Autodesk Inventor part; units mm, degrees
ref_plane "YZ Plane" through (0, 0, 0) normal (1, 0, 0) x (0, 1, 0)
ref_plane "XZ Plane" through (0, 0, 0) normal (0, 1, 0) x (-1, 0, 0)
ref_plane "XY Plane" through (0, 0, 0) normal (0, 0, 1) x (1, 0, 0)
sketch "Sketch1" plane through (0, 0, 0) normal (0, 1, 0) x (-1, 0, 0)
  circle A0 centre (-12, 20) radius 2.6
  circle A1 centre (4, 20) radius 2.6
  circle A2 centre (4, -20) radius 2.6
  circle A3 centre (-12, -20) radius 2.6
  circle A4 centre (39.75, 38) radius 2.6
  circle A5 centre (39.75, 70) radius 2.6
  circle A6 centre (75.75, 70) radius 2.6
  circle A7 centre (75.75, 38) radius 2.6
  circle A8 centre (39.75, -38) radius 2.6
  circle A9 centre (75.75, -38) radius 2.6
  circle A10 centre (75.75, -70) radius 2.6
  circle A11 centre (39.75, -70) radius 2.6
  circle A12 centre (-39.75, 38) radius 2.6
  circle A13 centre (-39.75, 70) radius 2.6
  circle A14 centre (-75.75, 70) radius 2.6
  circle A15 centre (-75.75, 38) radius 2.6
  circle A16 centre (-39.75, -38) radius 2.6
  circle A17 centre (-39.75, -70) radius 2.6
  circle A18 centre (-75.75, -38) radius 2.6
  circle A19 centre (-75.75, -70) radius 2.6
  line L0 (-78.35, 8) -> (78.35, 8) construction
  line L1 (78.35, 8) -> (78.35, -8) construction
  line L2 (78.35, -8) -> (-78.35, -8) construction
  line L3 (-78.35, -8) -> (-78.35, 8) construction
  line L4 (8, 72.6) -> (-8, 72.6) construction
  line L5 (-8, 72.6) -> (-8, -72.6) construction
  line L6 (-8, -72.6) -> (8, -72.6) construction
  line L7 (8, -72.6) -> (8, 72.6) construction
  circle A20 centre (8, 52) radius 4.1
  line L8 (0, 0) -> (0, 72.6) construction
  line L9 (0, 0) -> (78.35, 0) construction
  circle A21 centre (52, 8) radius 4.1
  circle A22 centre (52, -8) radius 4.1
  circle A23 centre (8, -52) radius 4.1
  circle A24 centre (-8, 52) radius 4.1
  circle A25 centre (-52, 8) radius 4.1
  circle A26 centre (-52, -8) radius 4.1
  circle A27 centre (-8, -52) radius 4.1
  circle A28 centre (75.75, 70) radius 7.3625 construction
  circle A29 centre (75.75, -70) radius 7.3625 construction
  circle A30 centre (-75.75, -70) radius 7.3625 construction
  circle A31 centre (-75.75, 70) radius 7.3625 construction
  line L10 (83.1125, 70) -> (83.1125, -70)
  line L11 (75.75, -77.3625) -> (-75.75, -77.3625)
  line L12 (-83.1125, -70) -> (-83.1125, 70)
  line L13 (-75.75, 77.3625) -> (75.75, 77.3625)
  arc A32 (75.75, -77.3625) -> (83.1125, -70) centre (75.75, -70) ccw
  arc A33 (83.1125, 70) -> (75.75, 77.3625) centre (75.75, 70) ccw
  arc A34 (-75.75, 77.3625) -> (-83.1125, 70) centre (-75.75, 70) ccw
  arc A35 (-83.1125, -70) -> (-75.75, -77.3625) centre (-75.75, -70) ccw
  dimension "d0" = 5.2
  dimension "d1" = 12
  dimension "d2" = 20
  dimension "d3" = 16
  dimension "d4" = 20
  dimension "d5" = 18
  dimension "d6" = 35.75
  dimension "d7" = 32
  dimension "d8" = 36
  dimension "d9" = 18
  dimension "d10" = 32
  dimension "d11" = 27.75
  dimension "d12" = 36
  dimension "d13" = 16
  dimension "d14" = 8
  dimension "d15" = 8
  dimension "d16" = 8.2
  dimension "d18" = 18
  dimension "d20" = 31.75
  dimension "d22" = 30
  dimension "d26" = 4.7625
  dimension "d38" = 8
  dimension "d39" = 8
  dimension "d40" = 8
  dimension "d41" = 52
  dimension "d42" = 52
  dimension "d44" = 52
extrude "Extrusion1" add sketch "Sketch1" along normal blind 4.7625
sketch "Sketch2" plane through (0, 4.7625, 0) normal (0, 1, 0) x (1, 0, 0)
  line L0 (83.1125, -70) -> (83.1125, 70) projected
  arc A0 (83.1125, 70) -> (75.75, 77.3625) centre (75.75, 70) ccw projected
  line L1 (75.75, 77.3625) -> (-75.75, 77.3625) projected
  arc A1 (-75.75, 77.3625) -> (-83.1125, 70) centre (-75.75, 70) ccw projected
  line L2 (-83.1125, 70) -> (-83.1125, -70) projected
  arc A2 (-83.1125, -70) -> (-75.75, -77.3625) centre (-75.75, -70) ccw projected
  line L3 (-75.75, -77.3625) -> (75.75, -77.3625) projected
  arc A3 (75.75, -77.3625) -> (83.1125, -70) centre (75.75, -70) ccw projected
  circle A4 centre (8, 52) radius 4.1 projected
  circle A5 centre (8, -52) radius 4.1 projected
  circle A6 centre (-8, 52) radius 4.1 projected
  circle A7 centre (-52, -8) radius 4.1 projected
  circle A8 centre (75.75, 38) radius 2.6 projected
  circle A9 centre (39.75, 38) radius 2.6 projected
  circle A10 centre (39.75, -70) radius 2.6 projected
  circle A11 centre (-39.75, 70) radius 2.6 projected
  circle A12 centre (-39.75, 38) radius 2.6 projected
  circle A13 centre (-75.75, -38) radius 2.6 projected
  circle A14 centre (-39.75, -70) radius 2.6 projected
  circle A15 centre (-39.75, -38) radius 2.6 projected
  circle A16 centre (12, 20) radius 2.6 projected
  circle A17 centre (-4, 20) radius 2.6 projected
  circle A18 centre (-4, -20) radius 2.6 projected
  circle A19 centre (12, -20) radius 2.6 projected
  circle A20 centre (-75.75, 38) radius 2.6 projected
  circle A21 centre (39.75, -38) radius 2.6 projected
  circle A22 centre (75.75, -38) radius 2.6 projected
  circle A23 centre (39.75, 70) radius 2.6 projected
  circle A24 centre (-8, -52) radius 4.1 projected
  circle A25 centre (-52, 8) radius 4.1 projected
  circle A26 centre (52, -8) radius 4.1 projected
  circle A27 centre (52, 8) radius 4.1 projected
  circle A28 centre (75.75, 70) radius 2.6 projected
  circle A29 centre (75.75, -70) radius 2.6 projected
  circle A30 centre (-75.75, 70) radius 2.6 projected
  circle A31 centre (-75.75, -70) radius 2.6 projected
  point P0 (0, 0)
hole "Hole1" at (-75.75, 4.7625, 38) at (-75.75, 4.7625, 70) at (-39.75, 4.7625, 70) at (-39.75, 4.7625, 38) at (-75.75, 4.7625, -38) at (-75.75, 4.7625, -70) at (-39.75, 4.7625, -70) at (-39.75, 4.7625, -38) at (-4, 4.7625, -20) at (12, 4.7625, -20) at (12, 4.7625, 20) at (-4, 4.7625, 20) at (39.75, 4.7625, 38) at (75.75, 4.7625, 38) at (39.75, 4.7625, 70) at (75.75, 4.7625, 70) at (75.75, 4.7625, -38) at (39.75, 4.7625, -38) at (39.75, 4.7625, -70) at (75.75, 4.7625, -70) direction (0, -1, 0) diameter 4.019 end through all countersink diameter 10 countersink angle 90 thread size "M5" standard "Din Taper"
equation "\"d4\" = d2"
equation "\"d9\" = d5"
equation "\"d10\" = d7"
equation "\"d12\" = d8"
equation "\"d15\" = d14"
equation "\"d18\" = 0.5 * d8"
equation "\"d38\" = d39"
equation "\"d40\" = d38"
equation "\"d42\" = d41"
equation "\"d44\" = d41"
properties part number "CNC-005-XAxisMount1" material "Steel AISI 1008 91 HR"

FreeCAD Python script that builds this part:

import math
import FreeCAD as App
import Part
import Sketcher
Q = App.Units.Quantity

doc = App.newDocument("Part")
params = doc.addObject("Spreadsheet::Sheet", "Params")
for row, (alias, value) in enumerate([
    ("sketch1_diameter", "5.2 mm"),
    ("sketch1_diameter2", "8.2 mm"),
    ("pad1_length", "4.7625 mm"),
    ("hole_diameter", "4.019 mm"),
    ("hole_csink_diameter", "10 mm"),
], start=1):
    params.set(f"A{row}", alias)
    params.set(f"B{row}", "=" + value)
    params.setAlias(f"B{row}", alias)

body = doc.addObject("PartDesign::Body", "Body")

sketch1 = doc.addObject("Sketcher::SketchObject", "Sketch")
body.addObject(sketch1)
sketch1.AttachmentSupport = (doc.XZ_Plane, [""])
sketch1.MapMode = "FlatFace"
sketch1.addGeometry(Part.LineSegment(App.Vector(-83.1, -70, 0), App.Vector(-83.1, 70, 0)), False)
sketch1.addGeometry(Part.ArcOfCircle(Part.Circle(App.Vector(-75.8, 70, 0), App.Vector(0, 0, 1), 7.4), math.radians(90), math.radians(180)), False)
sketch1.addGeometry(Part.LineSegment(App.Vector(-75.8, 77.4, 0), App.Vector(75.8, 77.4, 0)), False)
sketch1.addGeometry(Part.ArcOfCircle(Part.Circle(App.Vector(75.8, 70, 0), App.Vector(0, 0, 1), 7.4), math.radians(0), math.radians(90)), False)
sketch1.addGeometry(Part.LineSegment(App.Vector(83.1, 70, 0), App.Vector(83.1, -70, 0)), False)
sketch1.addGeometry(Part.ArcOfCircle(Part.Circle(App.Vector(75.8, -70, 0), App.Vector(0, 0, 1), 7.4), math.radians(-90), math.radians(0)), False)
sketch1.addGeometry(Part.LineSegment(App.Vector(75.8, -77.4, 0), App.Vector(-75.8, -77.4, 0)), False)
sketch1.addGeometry(Part.ArcOfCircle(Part.Circle(App.Vector(-75.8, -70, 0), App.Vector(0, 0, 1), 7.4), math.radians(180), math.radians(270)), False)
sketch1.addGeometry(Part.Circle(App.Vector(75.8, -70, 0), App.Vector(0, 0, 1), 2.6), False)
sketch1.addGeometry(Part.Circle(App.Vector(39.8, -70, 0), App.Vector(0, 0, 1), 2.6), False)
sketch1.addGeometry(Part.Circle(App.Vector(8, -52, 0), App.Vector(0, 0, 1), 4.1), False)
sketch1.addGeometry(Part.Circle(App.Vector(75.8, -38, 0), App.Vector(0, 0, 1), 2.6), False)
sketch1.addGeometry(Part.Circle(App.Vector(52, -8, 0), App.Vector(0, 0, 1), 4.1), False)
sketch1.addGeometry(Part.Circle(App.Vector(39.8, -38, 0), App.Vector(0, 0, 1), 2.6), False)
sketch1.addGeometry(Part.Circle(App.Vector(12, -20, 0), App.Vector(0, 0, 1), 2.6), False)
sketch1.addGeometry(Part.Circle(App.Vector(-39.8, -70, 0), App.Vector(0, 0, 1), 2.6), False)
sketch1.addGeometry(Part.Circle(App.Vector(-8, -52, 0), App.Vector(0, 0, 1), 4.1), False)
sketch1.addGeometry(Part.Circle(App.Vector(-75.8, -70, 0), App.Vector(0, 0, 1), 2.6), False)
sketch1.addGeometry(Part.Circle(App.Vector(-4, -20, 0), App.Vector(0, 0, 1), 2.6), False)
sketch1.addGeometry(Part.Circle(App.Vector(-39.8, -38, 0), App.Vector(0, 0, 1), 2.6), False)
sketch1.addGeometry(Part.Circle(App.Vector(-75.8, -38, 0), App.Vector(0, 0, 1), 2.6), False)
sketch1.addGeometry(Part.Circle(App.Vector(-52, -8, 0), App.Vector(0, 0, 1), 4.1), False)
sketch1.addGeometry(Part.Circle(App.Vector(52, 8, 0), App.Vector(0, 0, 1), 4.1), False)
sketch1.addGeometry(Part.Circle(App.Vector(75.8, 38, 0), App.Vector(0, 0, 1), 2.6), False)
sketch1.addGeometry(Part.Circle(App.Vector(39.8, 38, 0), App.Vector(0, 0, 1), 2.6), False)
sketch1.addGeometry(Part.Circle(App.Vector(12, 20, 0), App.Vector(0, 0, 1), 2.6), False)
sketch1.addGeometry(Part.Circle(App.Vector(75.8, 70, 0), App.Vector(0, 0, 1), 2.6), False)
sketch1.addGeometry(Part.Circle(App.Vector(8, 52, 0), App.Vector(0, 0, 1), 4.1), False)
sketch1.addGeometry(Part.Circle(App.Vector(39.8, 70, 0), App.Vector(0, 0, 1), 2.6), False)
sketch1.addGeometry(Part.Circle(App.Vector(-4, 20, 0), App.Vector(0, 0, 1), 2.6), False)
sketch1.addGeometry(Part.Circle(App.Vector(-39.8, 38, 0), App.Vector(0, 0, 1), 2.6), False)
sketch1.addGeometry(Part.Circle(App.Vector(-52, 8, 0), App.Vector(0, 0, 1), 4.1), False)
sketch1.addGeometry(Part.Circle(App.Vector(-75.8, 38, 0), App.Vector(0, 0, 1), 2.6), False)
sketch1.addGeometry(Part.Circle(App.Vector(-8, 52, 0), App.Vector(0, 0, 1), 4.1), False)
sketch1.addGeometry(Part.Circle(App.Vector(-39.8, 70, 0), App.Vector(0, 0, 1), 2.6), False)
sketch1.addGeometry(Part.Circle(App.Vector(-75.8, 70, 0), App.Vector(0, 0, 1), 2.6), False)
sketch1.addConstraint(Sketcher.Constraint("Tangent", 0, 2, 1, 2))
sketch1.addConstraint(Sketcher.Constraint("Tangent", 1, 1, 2, 1))
sketch1.addConstraint(Sketcher.Constraint("Tangent", 2, 2, 3, 2))
sketch1.addConstraint(Sketcher.Constraint("Tangent", 3, 1, 4, 1))
sketch1.addConstraint(Sketcher.Constraint("Tangent", 4, 2, 5, 2))
sketch1.addConstraint(Sketcher.Constraint("Tangent", 5, 1, 6, 1))
sketch1.addConstraint(Sketcher.Constraint("Tangent", 6, 2, 7, 2))
sketch1.addConstraint(Sketcher.Constraint("Tangent", 7, 1, 0, 1))
sketch1.addConstraint(Sketcher.Constraint("Vertical", 0))
sketch1.addConstraint(Sketcher.Constraint("Horizontal", 2))
sketch1.addConstraint(Sketcher.Constraint("Vertical", 4))
sketch1.addConstraint(Sketcher.Constraint("Horizontal", 6))
sketch1.addConstraint(Sketcher.Constraint("Coincident", 8, 3, 5, 3))
sketch1.addConstraint(Sketcher.Constraint("Coincident", 17, 3, 7, 3))
sketch1.addConstraint(Sketcher.Constraint("Coincident", 26, 3, 3, 3))
sketch1.addConstraint(Sketcher.Constraint("Coincident", 35, 3, 1, 3))
sketch1.addConstraint(Sketcher.Constraint("Equal", 1, 3))
sketch1.addConstraint(Sketcher.Constraint("Equal", 3, 5))
sketch1.addConstraint(Sketcher.Constraint("Equal", 5, 7))
sketch1.addConstraint(Sketcher.Constraint("Equal", 8, 9))
sketch1.addConstraint(Sketcher.Constraint("Equal", 9, 11))
sketch1.addConstraint(Sketcher.Constraint("Equal", 10, 12))
sketch1.addConstraint(Sketcher.Constraint("Equal", 11, 13))
sketch1.addConstraint(Sketcher.Constraint("Equal", 13, 14))
sketch1.addConstraint(Sketcher.Constraint("Equal", 14, 15))
sketch1.addConstraint(Sketcher.Constraint("Equal", 12, 16))
sketch1.addConstraint(Sketcher.Constraint("Equal", 15, 17))
sketch1.addConstraint(Sketcher.Constraint("Equal", 17, 18))
sketch1.addConstraint(Sketcher.Constraint("Equal", 18, 19))
sketch1.addConstraint(Sketcher.Constraint("Equal", 19, 20))
sketch1.addConstraint(Sketcher.Constraint("Equal", 16, 21))
sketch1.addConstraint(Sketcher.Constraint("Equal", 21, 22))
sketch1.addConstraint(Sketcher.Constraint("Equal", 20, 23))
sketch1.addConstraint(Sketcher.Constraint("Equal", 23, 24))
sketch1.addConstraint(Sketcher.Constraint("Equal", 24, 25))
sketch1.addConstraint(Sketcher.Constraint("Equal", 25, 26))
sketch1.addConstraint(Sketcher.Constraint("Equal", 22, 27))
sketch1.addConstraint(Sketcher.Constraint("Equal", 26, 28))
sketch1.addConstraint(Sketcher.Constraint("Equal", 28, 29))
sketch1.addConstraint(Sketcher.Constraint("Equal", 29, 30))
sketch1.addConstraint(Sketcher.Constraint("Equal", 27, 31))
sketch1.addConstraint(Sketcher.Constraint("Equal", 30, 32))
sketch1.addConstraint(Sketcher.Constraint("Equal", 31, 33))
sketch1.addConstraint(Sketcher.Constraint("Equal", 32, 34))
sketch1.addConstraint(Sketcher.Constraint("Equal", 34, 35))
sketch1.addConstraint(Sketcher.Constraint("Symmetric", 1, 3, 5, 3, -1, 1))
sketch1.addConstraint(Sketcher.Constraint("Symmetric", 21, 3, 22, 3, -1, 1))
sketch1.addConstraint(Sketcher.Constraint("Symmetric", 20, 3, 23, 3, -1, 1))
sketch1.addConstraint(Sketcher.Constraint("Symmetric", 19, 3, 24, 3, -1, 1))
sketch1.addConstraint(Sketcher.Constraint("Symmetric", 16, 3, 27, 3, -1, 1))
sketch1.addConstraint(Sketcher.Constraint("Symmetric", 15, 3, 28, 3, -1, 1))
sketch1.addConstraint(Sketcher.Constraint("Symmetric", 13, 3, 30, 3, -1, 1))
sketch1.addConstraint(Sketcher.Constraint("Symmetric", 12, 3, 31, 3, -1, 1))
sketch1.addConstraint(Sketcher.Constraint("Symmetric", 11, 3, 32, 3, -1, 1))
sketch1.addConstraint(Sketcher.Constraint("Symmetric", 10, 3, 33, 3, -1, 1))
sketch1.addConstraint(Sketcher.Constraint("Symmetric", 9, 3, 34, 3, -1, 1))
sketch1.addConstraint(Sketcher.Constraint("Symmetric", 9, 3, 15, 3, -2))
sketch1.addConstraint(Sketcher.Constraint("Symmetric", 10, 3, 16, 3, -2))
sketch1.addConstraint(Sketcher.Constraint("Symmetric", 13, 3, 19, 3, -2))
sketch1.addConstraint(Sketcher.Constraint("Symmetric", 11, 3, 20, 3, -2))
sketch1.addConstraint(Sketcher.Constraint("Symmetric", 12, 3, 21, 3, -2))
sketch1.addConstraint(Sketcher.Constraint("Symmetric", 14, 3, 25, 3, -1))
sketch1.addConstraint(Sketcher.Constraint("Symmetric", 18, 3, 29, 3, -1))
sketch1.addConstraint(Sketcher.Constraint("Horizontal", 8, 3, 9, 3))
sketch1.addConstraint(Sketcher.Constraint("Horizontal", 11, 3, 13, 3))
sketch1.addConstraint(Sketcher.Constraint("Horizontal", 14, 3, 18, 3))
sketch1.addConstraint(Sketcher.Constraint("Vertical", 8, 3, 11, 3))
sketch1.addConstraint(Sketcher.Constraint("Vertical", 9, 3, 13, 3))
sketch1.addConstraint(Sketcher.Constraint("Diameter", 8, Q("5.2 mm")))
sketch1.addConstraint(Sketcher.Constraint("Diameter", 10, Q("8.2 mm")))
sketch1.addConstraint(Sketcher.Constraint("DistanceX", -1, 1, 10, 3, Q("8 mm")))
sketch1.addConstraint(Sketcher.Constraint("DistanceY", 10, 3, -1, 1, Q("52 mm")))
sketch1.addConstraint(Sketcher.Constraint("DistanceX", -1, 1, 12, 3, Q("52 mm")))
sketch1.addConstraint(Sketcher.Constraint("DistanceY", 12, 3, -1, 1, Q("8 mm")))
sketch1.addConstraint(Sketcher.Constraint("DistanceX", -1, 1, 14, 3, Q("12 mm")))
sketch1.addConstraint(Sketcher.Constraint("DistanceY", 14, 3, -1, 1, Q("20 mm")))
sketch1.addConstraint(Sketcher.Constraint("DistanceX", 9, 3, 5, 3, Q("36 mm")))
sketch1.addConstraint(Sketcher.Constraint("DistanceY", 9, 3, 10, 3, Q("18 mm")))
sketch1.addConstraint(Sketcher.Constraint("DistanceY", 5, 3, 11, 3, Q("32 mm")))
sketch1.addConstraint(Sketcher.Constraint("DistanceX", 18, 3, 14, 3, Q("16 mm")))
sketch1.addConstraint(Sketcher.Constraint("DistanceX", 10, 3, 9, 3, Q("31.75 mm")))
sketch1.addConstraint(Sketcher.Constraint("Radius", 1, Q("7.3625 mm")))
sketch1.setExpression("Constraints[68]", "Params.sketch1_diameter")
sketch1.setExpression("Constraints[69]", "Params.sketch1_diameter2")
pad1 = doc.addObject("PartDesign::Pad", "Pad")
body.addObject(pad1)
pad1.Profile = sketch1
pad1.setExpression("Length", "Params.pad1_length")
pad1.Reversed = True

sketch2 = doc.addObject("Sketcher::SketchObject", "Sketch001")
body.addObject(sketch2)
sketch2.AttachmentSupport = (doc.XZ_Plane, [""])
sketch2.MapMode = "FlatFace"
sketch2.AttachmentOffset = App.Placement(App.Vector(0, 0, -4.7625), App.Rotation())
sketch2.addGeometry(Part.Circle(App.Vector(-75.8, 38, 0), App.Vector(0, 0, 1), 2), False)
sketch2.addGeometry(Part.Circle(App.Vector(-75.8, 70, 0), App.Vector(0, 0, 1), 2), False)
sketch2.addGeometry(Part.Circle(App.Vector(-39.8, 70, 0), App.Vector(0, 0, 1), 2), False)
sketch2.addGeometry(Part.Circle(App.Vector(-39.8, 38, 0), App.Vector(0, 0, 1), 2), False)
sketch2.addGeometry(Part.Circle(App.Vector(-75.8, -38, 0), App.Vector(0, 0, 1), 2), False)
sketch2.addGeometry(Part.Circle(App.Vector(-75.8, -70, 0), App.Vector(0, 0, 1), 2), False)
sketch2.addGeometry(Part.Circle(App.Vector(-39.8, -70, 0), App.Vector(0, 0, 1), 2), False)
sketch2.addGeometry(Part.Circle(App.Vector(-39.8, -38, 0), App.Vector(0, 0, 1), 2), False)
sketch2.addGeometry(Part.Circle(App.Vector(-4, -20, 0), App.Vector(0, 0, 1), 2), False)
sketch2.addGeometry(Part.Circle(App.Vector(12, -20, 0), App.Vector(0, 0, 1), 2), False)
sketch2.addGeometry(Part.Circle(App.Vector(12, 20, 0), App.Vector(0, 0, 1), 2), False)
sketch2.addGeometry(Part.Circle(App.Vector(-4, 20, 0), App.Vector(0, 0, 1), 2), False)
sketch2.addGeometry(Part.Circle(App.Vector(39.8, 38, 0), App.Vector(0, 0, 1), 2), False)
sketch2.addGeometry(Part.Circle(App.Vector(75.8, 38, 0), App.Vector(0, 0, 1), 2), False)
sketch2.addGeometry(Part.Circle(App.Vector(39.8, 70, 0), App.Vector(0, 0, 1), 2), False)
sketch2.addGeometry(Part.Circle(App.Vector(75.8, 70, 0), App.Vector(0, 0, 1), 2), False)
sketch2.addGeometry(Part.Circle(App.Vector(75.8, -38, 0), App.Vector(0, 0, 1), 2), False)
sketch2.addGeometry(Part.Circle(App.Vector(39.8, -38, 0), App.Vector(0, 0, 1), 2), False)
sketch2.addGeometry(Part.Circle(App.Vector(39.8, -70, 0), App.Vector(0, 0, 1), 2), False)
sketch2.addGeometry(Part.Circle(App.Vector(75.8, -70, 0), App.Vector(0, 0, 1), 2), False)
sketch2.addConstraint(Sketcher.Constraint("Equal", 0, 1))
sketch2.addConstraint(Sketcher.Constraint("Equal", 1, 2))
sketch2.addConstraint(Sketcher.Constraint("Equal", 2, 3))
sketch2.addConstraint(Sketcher.Constraint("Equal", 3, 4))
sketch2.addConstraint(Sketcher.Constraint("Equal", 4, 5))
sketch2.addConstraint(Sketcher.Constraint("Equal", 5, 6))
sketch2.addConstraint(Sketcher.Constraint("Equal", 6, 7))
sketch2.addConstraint(Sketcher.Constraint("Equal", 7, 8))
sketch2.addConstraint(Sketcher.Constraint("Equal", 8, 9))
sketch2.addConstraint(Sketcher.Constraint("Equal", 9, 10))
sketch2.addConstraint(Sketcher.Constraint("Equal", 10, 11))
sketch2.addConstraint(Sketcher.Constraint("Equal", 11, 12))
sketch2.addConstraint(Sketcher.Constraint("Equal", 12, 13))
sketch2.addConstraint(Sketcher.Constraint("Equal", 13, 14))
sketch2.addConstraint(Sketcher.Constraint("Equal", 14, 15))
sketch2.addConstraint(Sketcher.Constraint("Equal", 15, 16))
sketch2.addConstraint(Sketcher.Constraint("Equal", 16, 17))
sketch2.addConstraint(Sketcher.Constraint("Equal", 17, 18))
sketch2.addConstraint(Sketcher.Constraint("Equal", 18, 19))
sketch2.addConstraint(Sketcher.Constraint("Symmetric", 7, 3, 12, 3, -1, 1))
sketch2.addConstraint(Sketcher.Constraint("Symmetric", 4, 3, 13, 3, -1, 1))
sketch2.addConstraint(Sketcher.Constraint("Symmetric", 6, 3, 14, 3, -1, 1))
sketch2.addConstraint(Sketcher.Constraint("Symmetric", 5, 3, 15, 3, -1, 1))
sketch2.addConstraint(Sketcher.Constraint("Symmetric", 0, 3, 16, 3, -1, 1))
sketch2.addConstraint(Sketcher.Constraint("Symmetric", 3, 3, 17, 3, -1, 1))
sketch2.addConstraint(Sketcher.Constraint("Symmetric", 2, 3, 18, 3, -1, 1))
sketch2.addConstraint(Sketcher.Constraint("Symmetric", 1, 3, 19, 3, -1, 1))
sketch2.addConstraint(Sketcher.Constraint("Symmetric", 3, 3, 12, 3, -2))
sketch2.addConstraint(Sketcher.Constraint("Symmetric", 0, 3, 13, 3, -2))
sketch2.addConstraint(Sketcher.Constraint("Symmetric", 2, 3, 14, 3, -2))
sketch2.addConstraint(Sketcher.Constraint("Symmetric", 1, 3, 15, 3, -2))
sketch2.addConstraint(Sketcher.Constraint("Symmetric", 9, 3, 10, 3, -1))
sketch2.addConstraint(Sketcher.Constraint("Symmetric", 8, 3, 11, 3, -1))
sketch2.addConstraint(Sketcher.Constraint("Horizontal", 1, 3, 2, 3))
sketch2.addConstraint(Sketcher.Constraint("Horizontal", 0, 3, 3, 3))
sketch2.addConstraint(Sketcher.Constraint("Horizontal", 8, 3, 9, 3))
sketch2.addConstraint(Sketcher.Constraint("Vertical", 0, 3, 1, 3))
sketch2.addConstraint(Sketcher.Constraint("Vertical", 2, 3, 3, 3))
sketch2.addConstraint(Sketcher.Constraint("Diameter", 0, Q("4.019 mm")))
sketch2.addConstraint(Sketcher.Constraint("DistanceY", -1, 1, 0, 3, Q("38 mm")))
sketch2.addConstraint(Sketcher.Constraint("DistanceY", -1, 1, 1, 3, Q("70 mm")))
sketch2.addConstraint(Sketcher.Constraint("DistanceX", 8, 3, -1, 1, Q("4 mm")))
sketch2.addConstraint(Sketcher.Constraint("DistanceY", 8, 3, -1, 1, Q("20 mm")))
sketch2.addConstraint(Sketcher.Constraint("DistanceX", -1, 1, 9, 3, Q("12 mm")))
sketch2.addConstraint(Sketcher.Constraint("DistanceX", 1, 3, 2, 3, Q("36 mm")))
sketch2.addConstraint(Sketcher.Constraint("DistanceX", 3, 3, 12, 3, Q("79.5 mm")))
doc.recompute()
hole = doc.addObject("PartDesign::Hole", "Hole")
body.addObject(hole)
hole.Profile = sketch2
hole.ThreadType = "None"
hole.setExpression("Diameter", "Params.hole_diameter")
hole.DepthType = "ThroughAll"
hole.HoleCutType = "Countersink"
hole.setExpression("HoleCutDiameter", "Params.hole_csink_diameter")
hole.HoleCutCountersinkAngle = 90
hole.Reversed = True

doc.recompute()
